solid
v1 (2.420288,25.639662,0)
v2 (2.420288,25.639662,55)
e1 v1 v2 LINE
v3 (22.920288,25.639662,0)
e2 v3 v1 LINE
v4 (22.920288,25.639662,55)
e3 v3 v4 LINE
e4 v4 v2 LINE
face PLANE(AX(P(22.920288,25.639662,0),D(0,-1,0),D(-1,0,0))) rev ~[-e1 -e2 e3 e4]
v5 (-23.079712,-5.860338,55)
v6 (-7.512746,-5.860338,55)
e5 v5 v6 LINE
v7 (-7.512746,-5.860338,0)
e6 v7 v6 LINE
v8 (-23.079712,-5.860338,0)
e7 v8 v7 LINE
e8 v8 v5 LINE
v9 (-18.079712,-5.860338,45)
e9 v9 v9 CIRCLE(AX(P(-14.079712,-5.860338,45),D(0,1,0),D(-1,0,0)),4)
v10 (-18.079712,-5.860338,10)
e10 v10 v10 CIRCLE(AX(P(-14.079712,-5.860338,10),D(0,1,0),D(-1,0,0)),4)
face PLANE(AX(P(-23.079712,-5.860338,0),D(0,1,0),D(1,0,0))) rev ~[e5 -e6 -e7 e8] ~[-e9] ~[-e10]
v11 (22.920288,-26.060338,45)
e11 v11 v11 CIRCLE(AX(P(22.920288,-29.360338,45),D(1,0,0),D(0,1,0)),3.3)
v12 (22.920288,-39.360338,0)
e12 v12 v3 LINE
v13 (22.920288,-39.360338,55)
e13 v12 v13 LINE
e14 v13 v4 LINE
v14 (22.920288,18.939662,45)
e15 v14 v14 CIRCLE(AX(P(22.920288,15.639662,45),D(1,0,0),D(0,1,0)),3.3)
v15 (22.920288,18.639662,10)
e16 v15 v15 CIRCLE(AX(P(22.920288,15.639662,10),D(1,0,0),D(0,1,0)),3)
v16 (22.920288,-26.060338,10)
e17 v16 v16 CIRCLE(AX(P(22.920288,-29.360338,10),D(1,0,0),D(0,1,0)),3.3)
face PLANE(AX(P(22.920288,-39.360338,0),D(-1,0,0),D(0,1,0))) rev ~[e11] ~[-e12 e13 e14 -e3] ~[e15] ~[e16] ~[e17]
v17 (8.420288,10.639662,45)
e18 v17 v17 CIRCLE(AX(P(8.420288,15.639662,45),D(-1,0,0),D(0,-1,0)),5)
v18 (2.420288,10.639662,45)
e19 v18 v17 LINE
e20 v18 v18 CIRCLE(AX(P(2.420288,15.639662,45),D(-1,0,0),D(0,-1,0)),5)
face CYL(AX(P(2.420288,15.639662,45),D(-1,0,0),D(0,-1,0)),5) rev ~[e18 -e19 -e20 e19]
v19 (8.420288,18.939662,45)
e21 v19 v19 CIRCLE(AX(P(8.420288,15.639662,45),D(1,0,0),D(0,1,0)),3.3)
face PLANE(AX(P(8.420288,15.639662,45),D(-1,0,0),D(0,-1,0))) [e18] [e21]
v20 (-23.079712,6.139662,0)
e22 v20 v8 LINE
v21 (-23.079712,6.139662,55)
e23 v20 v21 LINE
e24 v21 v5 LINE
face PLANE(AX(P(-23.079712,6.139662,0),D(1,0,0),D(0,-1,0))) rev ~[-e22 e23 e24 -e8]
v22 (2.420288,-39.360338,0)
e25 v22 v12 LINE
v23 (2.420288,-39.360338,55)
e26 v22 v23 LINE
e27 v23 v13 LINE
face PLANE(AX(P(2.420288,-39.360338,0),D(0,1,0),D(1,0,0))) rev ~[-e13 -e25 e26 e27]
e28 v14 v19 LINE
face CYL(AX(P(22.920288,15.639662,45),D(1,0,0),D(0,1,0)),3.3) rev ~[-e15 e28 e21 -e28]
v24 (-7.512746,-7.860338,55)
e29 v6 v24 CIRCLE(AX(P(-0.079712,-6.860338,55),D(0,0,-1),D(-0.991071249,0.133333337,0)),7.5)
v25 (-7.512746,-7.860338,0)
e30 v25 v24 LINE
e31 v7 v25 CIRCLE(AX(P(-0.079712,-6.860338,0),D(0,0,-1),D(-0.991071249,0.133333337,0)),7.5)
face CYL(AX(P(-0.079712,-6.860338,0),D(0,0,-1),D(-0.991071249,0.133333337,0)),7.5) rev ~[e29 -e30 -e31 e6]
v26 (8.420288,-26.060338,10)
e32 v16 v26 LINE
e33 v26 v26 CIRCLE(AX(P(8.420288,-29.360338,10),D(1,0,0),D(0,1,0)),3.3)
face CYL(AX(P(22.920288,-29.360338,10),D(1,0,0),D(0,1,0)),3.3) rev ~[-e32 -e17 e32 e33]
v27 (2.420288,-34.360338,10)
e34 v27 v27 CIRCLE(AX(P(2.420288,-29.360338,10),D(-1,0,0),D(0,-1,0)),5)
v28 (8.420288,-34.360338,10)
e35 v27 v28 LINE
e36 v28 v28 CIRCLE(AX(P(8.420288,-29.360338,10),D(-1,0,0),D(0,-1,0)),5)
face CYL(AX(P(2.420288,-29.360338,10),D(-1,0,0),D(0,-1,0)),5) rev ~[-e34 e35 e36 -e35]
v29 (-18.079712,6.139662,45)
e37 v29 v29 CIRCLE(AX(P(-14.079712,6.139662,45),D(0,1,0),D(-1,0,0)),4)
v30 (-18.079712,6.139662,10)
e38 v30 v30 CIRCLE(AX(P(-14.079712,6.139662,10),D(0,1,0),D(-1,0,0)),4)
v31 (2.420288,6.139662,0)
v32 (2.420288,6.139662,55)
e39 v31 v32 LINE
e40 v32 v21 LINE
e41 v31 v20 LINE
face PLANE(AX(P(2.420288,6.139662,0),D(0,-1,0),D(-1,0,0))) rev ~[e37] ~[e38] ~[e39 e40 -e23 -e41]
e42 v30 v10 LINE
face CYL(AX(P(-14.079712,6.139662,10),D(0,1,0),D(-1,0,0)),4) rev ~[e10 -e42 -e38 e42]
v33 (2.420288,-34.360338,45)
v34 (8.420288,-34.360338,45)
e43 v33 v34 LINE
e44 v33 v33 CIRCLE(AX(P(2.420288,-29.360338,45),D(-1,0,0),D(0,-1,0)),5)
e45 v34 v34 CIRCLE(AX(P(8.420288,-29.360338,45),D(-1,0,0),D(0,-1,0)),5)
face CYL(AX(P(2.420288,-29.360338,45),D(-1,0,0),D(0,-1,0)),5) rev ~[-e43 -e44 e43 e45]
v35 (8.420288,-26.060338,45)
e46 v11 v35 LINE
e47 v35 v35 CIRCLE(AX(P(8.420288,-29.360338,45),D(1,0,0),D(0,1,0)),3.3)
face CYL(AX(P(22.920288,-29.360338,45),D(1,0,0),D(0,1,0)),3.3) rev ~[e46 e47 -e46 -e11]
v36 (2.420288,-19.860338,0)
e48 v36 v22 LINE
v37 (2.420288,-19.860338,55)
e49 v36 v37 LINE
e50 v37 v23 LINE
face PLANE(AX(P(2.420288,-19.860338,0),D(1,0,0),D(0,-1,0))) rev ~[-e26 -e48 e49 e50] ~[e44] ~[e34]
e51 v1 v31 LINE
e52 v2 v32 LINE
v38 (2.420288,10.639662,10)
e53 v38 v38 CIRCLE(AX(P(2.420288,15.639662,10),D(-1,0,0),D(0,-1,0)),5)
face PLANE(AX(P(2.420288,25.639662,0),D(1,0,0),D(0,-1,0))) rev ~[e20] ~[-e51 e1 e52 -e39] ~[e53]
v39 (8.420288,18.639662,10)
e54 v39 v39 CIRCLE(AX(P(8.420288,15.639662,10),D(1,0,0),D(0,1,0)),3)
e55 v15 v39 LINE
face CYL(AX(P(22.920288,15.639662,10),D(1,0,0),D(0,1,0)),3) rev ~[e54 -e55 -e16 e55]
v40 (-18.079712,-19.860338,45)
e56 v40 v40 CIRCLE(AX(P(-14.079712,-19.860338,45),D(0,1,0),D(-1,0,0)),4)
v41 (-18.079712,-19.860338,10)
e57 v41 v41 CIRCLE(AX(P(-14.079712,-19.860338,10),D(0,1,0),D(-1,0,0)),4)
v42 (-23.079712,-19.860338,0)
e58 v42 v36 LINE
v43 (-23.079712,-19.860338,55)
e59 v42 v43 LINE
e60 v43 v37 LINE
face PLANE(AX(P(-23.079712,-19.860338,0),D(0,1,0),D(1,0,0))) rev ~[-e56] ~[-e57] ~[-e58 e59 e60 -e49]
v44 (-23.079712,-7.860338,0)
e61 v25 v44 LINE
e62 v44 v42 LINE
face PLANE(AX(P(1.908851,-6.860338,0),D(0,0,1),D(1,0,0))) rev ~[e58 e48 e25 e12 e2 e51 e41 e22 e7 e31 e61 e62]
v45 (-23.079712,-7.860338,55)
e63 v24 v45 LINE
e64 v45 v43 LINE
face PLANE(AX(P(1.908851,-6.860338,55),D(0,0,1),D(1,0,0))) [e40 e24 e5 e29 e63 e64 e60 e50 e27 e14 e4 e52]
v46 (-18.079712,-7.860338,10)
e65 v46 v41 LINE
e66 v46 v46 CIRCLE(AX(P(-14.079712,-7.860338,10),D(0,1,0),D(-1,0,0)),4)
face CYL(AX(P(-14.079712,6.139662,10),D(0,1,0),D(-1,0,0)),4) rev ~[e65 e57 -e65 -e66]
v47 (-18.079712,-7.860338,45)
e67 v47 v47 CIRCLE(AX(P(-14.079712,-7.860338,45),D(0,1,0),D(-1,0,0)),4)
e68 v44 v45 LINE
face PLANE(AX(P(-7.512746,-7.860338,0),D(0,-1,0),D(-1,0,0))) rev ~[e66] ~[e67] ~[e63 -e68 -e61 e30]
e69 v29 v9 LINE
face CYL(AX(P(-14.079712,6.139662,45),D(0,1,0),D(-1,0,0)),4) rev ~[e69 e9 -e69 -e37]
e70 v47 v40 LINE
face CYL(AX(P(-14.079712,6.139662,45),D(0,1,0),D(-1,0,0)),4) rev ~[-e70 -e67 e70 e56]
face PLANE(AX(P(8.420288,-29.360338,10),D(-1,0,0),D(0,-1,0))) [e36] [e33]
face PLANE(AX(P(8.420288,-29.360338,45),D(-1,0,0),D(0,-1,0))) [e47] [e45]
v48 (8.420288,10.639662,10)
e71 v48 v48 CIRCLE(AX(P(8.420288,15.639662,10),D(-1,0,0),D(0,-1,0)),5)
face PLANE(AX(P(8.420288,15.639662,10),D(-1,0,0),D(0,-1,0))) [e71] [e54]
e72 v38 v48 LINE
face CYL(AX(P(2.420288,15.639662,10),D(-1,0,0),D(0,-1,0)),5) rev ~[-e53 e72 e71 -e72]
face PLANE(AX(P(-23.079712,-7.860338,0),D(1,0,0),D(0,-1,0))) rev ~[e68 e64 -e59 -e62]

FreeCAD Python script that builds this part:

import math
import FreeCAD as App
import Part
import Sketcher
from FreeCAD import Vector
Q = App.Units.Quantity

doc = App.newDocument("Part")
params = doc.addObject("Spreadsheet::Sheet", "Params")
for row, (alias, value) in enumerate([
    ("sketch1_radius", "7.5 mm"),
    ("sketch1_height", "12 mm"),
    ("sketch1_height2", "65 mm"),
    ("sketch1_width", "20.5 mm"),
    ("sketch1_width2", "25.5 mm"),
    ("pad1_length", "55 mm"),
    ("sketch2_diameter", "8 mm"),
    ("pocket1_length", "60 mm"),
    ("sketch3_diameter", "6 mm"),
    ("sketch3_diameter2", "6.6 mm"),
    ("pocket2_length", "14.5 mm"),
    ("sketch4_diameter", "10 mm"),
    ("pocket3_length", "6 mm"),
    ("sketch5_diameter", "10 mm"),
    ("pocket4_length", "6 mm"),
], start=1):
    params.set(f"A{row}", alias)
    params.set(f"B{row}", "=" + value)
    params.setAlias(f"B{row}", alias)

body = doc.addObject("PartDesign::Body", "Body")

# Sketch on XY plane
sketch1 = body.newObject("Sketcher::SketchObject", "Sketch")
sketch1.AttachmentSupport = (doc.getObject("XY_Plane"), [""])
sketch1.MapMode = "FlatFace"
sketch1.addGeometry([
    Part.LineSegment(Vector(22.9, 25.6, 0), Vector(2.4, 25.6, 0)),  # 0
    Part.LineSegment(Vector(2.4, 25.6, 0), Vector(2.4, 6.1, 0)),  # 1
    Part.LineSegment(Vector(2.4, 6.1, 0), Vector(-23.1, 6.1, 0)),  # 2
    Part.LineSegment(Vector(-23.1, 6.1, 0), Vector(-23.1, -5.9, 0)),  # 3
    Part.LineSegment(Vector(-23.1, -5.9, 0), Vector(-7.5, -5.9, 0)),  # 4
    Part.ArcOfCircle(Part.Circle(Vector(-0.1, -6.9, 0), Vector(0, 0, 1), 7.5), math.radians(-172), math.radians(172)),  # 5
    Part.LineSegment(Vector(-7.5, -7.9, 0), Vector(-23.1, -7.9, 0)),  # 6
    Part.LineSegment(Vector(-23.1, -7.9, 0), Vector(-23.1, -19.9, 0)),  # 7
    Part.LineSegment(Vector(-23.1, -19.9, 0), Vector(2.4, -19.9, 0)),  # 8
    Part.LineSegment(Vector(2.4, -19.9, 0), Vector(2.4, -39.4, 0)),  # 9
    Part.LineSegment(Vector(2.4, -39.4, 0), Vector(22.9, -39.4, 0)),  # 10
    Part.LineSegment(Vector(22.9, -39.4, 0), Vector(22.9, 25.6, 0)),  # 11
], False)
sketch1.addConstraint([
    Sketcher.Constraint("Coincident", 0, 2, 1, 1),
    Sketcher.Constraint("Coincident", 1, 2, 2, 1),
    Sketcher.Constraint("Coincident", 2, 2, 3, 1),
    Sketcher.Constraint("Coincident", 3, 2, 4, 1),
    Sketcher.Constraint("Coincident", 4, 2, 5, 2),
    Sketcher.Constraint("Coincident", 5, 1, 6, 1),
    Sketcher.Constraint("Coincident", 6, 2, 7, 1),
    Sketcher.Constraint("Coincident", 7, 2, 8, 1),
    Sketcher.Constraint("Coincident", 8, 2, 9, 1),
    Sketcher.Constraint("Coincident", 9, 2, 10, 1),
    Sketcher.Constraint("Coincident", 10, 2, 11, 1),
    Sketcher.Constraint("Coincident", 11, 2, 0, 1),
    Sketcher.Constraint("Horizontal", 0),
    Sketcher.Constraint("Vertical", 1),
    Sketcher.Constraint("Horizontal", 2),
    Sketcher.Constraint("Vertical", 3),
    Sketcher.Constraint("Horizontal", 4),
    Sketcher.Constraint("Horizontal", 6),
    Sketcher.Constraint("Vertical", 7),
    Sketcher.Constraint("Horizontal", 8),
    Sketcher.Constraint("Vertical", 9),
    Sketcher.Constraint("Horizontal", 10),
    Sketcher.Constraint("Vertical", 11),
    Sketcher.Constraint("Vertical", 4, 2, 5, 1),
    Sketcher.Constraint("Vertical", 3, 2, 6, 2),
    Sketcher.Constraint("Vertical", 1, 2, 8, 2),
    Sketcher.Constraint("Equal", 3, 7),
    Sketcher.Constraint("Equal", 1, 9),
    Sketcher.Constraint("Radius", 5, Q("7.5 mm")),
    Sketcher.Constraint("DistanceY", 3, 2, 3, 1, Q("12 mm")),
    Sketcher.Constraint("DistanceY", 11, 1, 11, 2, Q("65 mm")),
    Sketcher.Constraint("DistanceX", 0, 2, 0, 1, Q("20.5 mm")),
    Sketcher.Constraint("DistanceX", 2, 2, 2, 1, Q("25.5 mm")),
    Sketcher.Constraint("DistanceY", 1, 2, 1, 1, Q("19.5 mm")),
    Sketcher.Constraint("DistanceX", 2, 2, 5, 3, Q("23 mm")),
    Sketcher.Constraint("DistanceX", 5, 3, -1, 1, Q("0.079712 mm")),
    Sketcher.Constraint("DistanceY", 5, 3, -1, 1, Q("6.860338 mm")),
])
sketch1.setExpression("Constraints[28]", "Params.sketch1_radius")
sketch1.setExpression("Constraints[29]", "Params.sketch1_height")
sketch1.setExpression("Constraints[30]", "Params.sketch1_height2")
sketch1.setExpression("Constraints[31]", "Params.sketch1_width")
sketch1.setExpression("Constraints[32]", "Params.sketch1_width2")
pad1 = body.newObject("PartDesign::Pad", "Pad")
pad1.Profile = sketch1
pad1.setExpression("Length", "Params.pad1_length")

# Sketch on XZ plane
sketch2 = body.newObject("Sketcher::SketchObject", "Sketch001")
sketch2.AttachmentSupport = (doc.getObject("XZ_Plane"), [""])
sketch2.MapMode = "FlatFace"
sketch2.AttachmentOffset = App.Placement(Vector(0, 0, -6.139662), App.Rotation())
sketch2.addGeometry([
    Part.Circle(Vector(-14.1, 10, 0), Vector(0, 0, 1), 4),
    Part.Circle(Vector(-14.1, 45, 0), Vector(0, 0, 1), 4),
], False)
sketch2.addConstraint([
    Sketcher.Constraint("Equal", 0, 1),
    Sketcher.Constraint("Vertical", 0, 3, 1, 3),
    Sketcher.Constraint("Diameter", 0, Q("8 mm")),
    Sketcher.Constraint("DistanceY", -1, 1, 0, 3, Q("10 mm")),
    Sketcher.Constraint("DistanceY", -1, 1, 1, 3, Q("45 mm")),
    Sketcher.Constraint("DistanceX", 0, 3, -1, 1, Q("14.079712 mm")),
])
sketch2.setExpression("Constraints[2]", "Params.sketch2_diameter")
pocket1 = body.newObject("PartDesign::Pocket", "Pocket")
pocket1.Profile = sketch2
pocket1.setExpression("Length", "Params.pocket1_length")
pocket1.Reversed = True

# Sketch on YZ plane
sketch3 = body.newObject("Sketcher::SketchObject", "Sketch002")
sketch3.AttachmentSupport = (doc.getObject("YZ_Plane"), [""])
sketch3.MapMode = "FlatFace"
sketch3.AttachmentOffset = App.Placement(Vector(0, 0, 22.920288), App.Rotation())
sketch3.addGeometry([
    Part.Circle(Vector(-29.4, 10, 0), Vector(0, 0, 1), 3.3),
    Part.Circle(Vector(15.6, 10, 0), Vector(0, 0, 1), 3),
    Part.Circle(Vector(15.6, 45, 0), Vector(0, 0, 1), 3.3),
    Part.Circle(Vector(-29.4, 45, 0), Vector(0, 0, 1), 3.3),
], False)
sketch3.addConstraint([
    Sketcher.Constraint("Equal", 0, 2),
    Sketcher.Constraint("Equal", 2, 3),
    Sketcher.Constraint("Horizontal", 0, 3, 1, 3),
    Sketcher.Constraint("Horizontal", 2, 3, 3, 3),
    Sketcher.Constraint("Vertical", 1, 3, 2, 3),
    Sketcher.Constraint("Vertical", 0, 3, 3, 3),
    Sketcher.Constraint("Diameter", 1, Q("6 mm")),
    Sketcher.Constraint("Diameter", 0, Q("6.6 mm")),
    Sketcher.Constraint("DistanceY", -1, 1, 0, 3, Q("10 mm")),
    Sketcher.Constraint("DistanceY", -1, 1, 2, 3, Q("45 mm")),
    Sketcher.Constraint("DistanceX", 0, 3, 1, 3, Q("45 mm")),
    Sketcher.Constraint("DistanceX", 0, 3, -1, 1, Q("29.360338 mm")),
])
sketch3.setExpression("Constraints[6]", "Params.sketch3_diameter")
sketch3.setExpression("Constraints[7]", "Params.sketch3_diameter2")
pocket2 = body.newObject("PartDesign::Pocket", "Pocket001")
pocket2.Profile = sketch3
pocket2.setExpression("Length", "Params.pocket2_length")

# Sketch on YZ plane
sketch4 = body.newObject("Sketcher::SketchObject", "Sketch003")
sketch4.AttachmentSupport = (doc.getObject("YZ_Plane"), [""])
sketch4.MapMode = "FlatFace"
sketch4.AttachmentOffset = App.Placement(Vector(0, 0, 2.420288), App.Rotation())
sketch4.addGeometry([
    Part.Circle(Vector(-29, 45, 0), Vector(0, 0, 1), 5),
    Part.Circle(Vector(-29, 10, 0), Vector(0, 0, 1), 5),
], False)
sketch4.addConstraint([
    Sketcher.Constraint("Equal", 0, 1),
    Sketcher.Constraint("Vertical", 0, 3, 1, 3),
    Sketcher.Constraint("Diameter", 0, Q("10 mm")),
    Sketcher.Constraint("DistanceY", -1, 1, 0, 3, Q("45 mm")),
    Sketcher.Constraint("DistanceY", -1, 1, 1, 3, Q("10 mm")),
    Sketcher.Constraint("DistanceX", 0, 3, -1, 1, Q("29.360338 mm")),
])
sketch4.setExpression("Constraints[2]", "Params.sketch4_diameter")
pocket3 = body.newObject("PartDesign::Pocket", "Pocket002")
pocket3.Profile = sketch4
pocket3.setExpression("Length", "Params.pocket3_length")
pocket3.Reversed = True

# Sketch on YZ plane
sketch5 = body.newObject("Sketcher::SketchObject", "Sketch004")
sketch5.AttachmentSupport = (doc.getObject("YZ_Plane"), [""])
sketch5.MapMode = "FlatFace"
sketch5.AttachmentOffset = App.Placement(Vector(0, 0, 2.420288), App.Rotation())
sketch5.addGeometry([
    Part.Circle(Vector(16, 45, 0), Vector(0, 0, 1), 5),
    Part.Circle(Vector(16, 10, 0), Vector(0, 0, 1), 5),
], False)
sketch5.addConstraint([
    Sketcher.Constraint("Equal", 0, 1),
    Sketcher.Constraint("Vertical", 0, 3, 1, 3),
    Sketcher.Constraint("Diameter", 0, Q("10 mm")),
    Sketcher.Constraint("DistanceY", -1, 1, 0, 3, Q("45 mm")),
    Sketcher.Constraint("DistanceY", -1, 1, 1, 3, Q("10 mm")),
    Sketcher.Constraint("DistanceX", -1, 1, 0, 3, Q("15.639662 mm")),
])
sketch5.setExpression("Constraints[2]", "Params.sketch5_diameter")
pocket4 = body.newObject("PartDesign::Pocket", "Pocket003")
pocket4.Profile = sketch5
pocket4.setExpression("Length", "Params.pocket4_length")
pocket4.Reversed = True

doc.recompute()
